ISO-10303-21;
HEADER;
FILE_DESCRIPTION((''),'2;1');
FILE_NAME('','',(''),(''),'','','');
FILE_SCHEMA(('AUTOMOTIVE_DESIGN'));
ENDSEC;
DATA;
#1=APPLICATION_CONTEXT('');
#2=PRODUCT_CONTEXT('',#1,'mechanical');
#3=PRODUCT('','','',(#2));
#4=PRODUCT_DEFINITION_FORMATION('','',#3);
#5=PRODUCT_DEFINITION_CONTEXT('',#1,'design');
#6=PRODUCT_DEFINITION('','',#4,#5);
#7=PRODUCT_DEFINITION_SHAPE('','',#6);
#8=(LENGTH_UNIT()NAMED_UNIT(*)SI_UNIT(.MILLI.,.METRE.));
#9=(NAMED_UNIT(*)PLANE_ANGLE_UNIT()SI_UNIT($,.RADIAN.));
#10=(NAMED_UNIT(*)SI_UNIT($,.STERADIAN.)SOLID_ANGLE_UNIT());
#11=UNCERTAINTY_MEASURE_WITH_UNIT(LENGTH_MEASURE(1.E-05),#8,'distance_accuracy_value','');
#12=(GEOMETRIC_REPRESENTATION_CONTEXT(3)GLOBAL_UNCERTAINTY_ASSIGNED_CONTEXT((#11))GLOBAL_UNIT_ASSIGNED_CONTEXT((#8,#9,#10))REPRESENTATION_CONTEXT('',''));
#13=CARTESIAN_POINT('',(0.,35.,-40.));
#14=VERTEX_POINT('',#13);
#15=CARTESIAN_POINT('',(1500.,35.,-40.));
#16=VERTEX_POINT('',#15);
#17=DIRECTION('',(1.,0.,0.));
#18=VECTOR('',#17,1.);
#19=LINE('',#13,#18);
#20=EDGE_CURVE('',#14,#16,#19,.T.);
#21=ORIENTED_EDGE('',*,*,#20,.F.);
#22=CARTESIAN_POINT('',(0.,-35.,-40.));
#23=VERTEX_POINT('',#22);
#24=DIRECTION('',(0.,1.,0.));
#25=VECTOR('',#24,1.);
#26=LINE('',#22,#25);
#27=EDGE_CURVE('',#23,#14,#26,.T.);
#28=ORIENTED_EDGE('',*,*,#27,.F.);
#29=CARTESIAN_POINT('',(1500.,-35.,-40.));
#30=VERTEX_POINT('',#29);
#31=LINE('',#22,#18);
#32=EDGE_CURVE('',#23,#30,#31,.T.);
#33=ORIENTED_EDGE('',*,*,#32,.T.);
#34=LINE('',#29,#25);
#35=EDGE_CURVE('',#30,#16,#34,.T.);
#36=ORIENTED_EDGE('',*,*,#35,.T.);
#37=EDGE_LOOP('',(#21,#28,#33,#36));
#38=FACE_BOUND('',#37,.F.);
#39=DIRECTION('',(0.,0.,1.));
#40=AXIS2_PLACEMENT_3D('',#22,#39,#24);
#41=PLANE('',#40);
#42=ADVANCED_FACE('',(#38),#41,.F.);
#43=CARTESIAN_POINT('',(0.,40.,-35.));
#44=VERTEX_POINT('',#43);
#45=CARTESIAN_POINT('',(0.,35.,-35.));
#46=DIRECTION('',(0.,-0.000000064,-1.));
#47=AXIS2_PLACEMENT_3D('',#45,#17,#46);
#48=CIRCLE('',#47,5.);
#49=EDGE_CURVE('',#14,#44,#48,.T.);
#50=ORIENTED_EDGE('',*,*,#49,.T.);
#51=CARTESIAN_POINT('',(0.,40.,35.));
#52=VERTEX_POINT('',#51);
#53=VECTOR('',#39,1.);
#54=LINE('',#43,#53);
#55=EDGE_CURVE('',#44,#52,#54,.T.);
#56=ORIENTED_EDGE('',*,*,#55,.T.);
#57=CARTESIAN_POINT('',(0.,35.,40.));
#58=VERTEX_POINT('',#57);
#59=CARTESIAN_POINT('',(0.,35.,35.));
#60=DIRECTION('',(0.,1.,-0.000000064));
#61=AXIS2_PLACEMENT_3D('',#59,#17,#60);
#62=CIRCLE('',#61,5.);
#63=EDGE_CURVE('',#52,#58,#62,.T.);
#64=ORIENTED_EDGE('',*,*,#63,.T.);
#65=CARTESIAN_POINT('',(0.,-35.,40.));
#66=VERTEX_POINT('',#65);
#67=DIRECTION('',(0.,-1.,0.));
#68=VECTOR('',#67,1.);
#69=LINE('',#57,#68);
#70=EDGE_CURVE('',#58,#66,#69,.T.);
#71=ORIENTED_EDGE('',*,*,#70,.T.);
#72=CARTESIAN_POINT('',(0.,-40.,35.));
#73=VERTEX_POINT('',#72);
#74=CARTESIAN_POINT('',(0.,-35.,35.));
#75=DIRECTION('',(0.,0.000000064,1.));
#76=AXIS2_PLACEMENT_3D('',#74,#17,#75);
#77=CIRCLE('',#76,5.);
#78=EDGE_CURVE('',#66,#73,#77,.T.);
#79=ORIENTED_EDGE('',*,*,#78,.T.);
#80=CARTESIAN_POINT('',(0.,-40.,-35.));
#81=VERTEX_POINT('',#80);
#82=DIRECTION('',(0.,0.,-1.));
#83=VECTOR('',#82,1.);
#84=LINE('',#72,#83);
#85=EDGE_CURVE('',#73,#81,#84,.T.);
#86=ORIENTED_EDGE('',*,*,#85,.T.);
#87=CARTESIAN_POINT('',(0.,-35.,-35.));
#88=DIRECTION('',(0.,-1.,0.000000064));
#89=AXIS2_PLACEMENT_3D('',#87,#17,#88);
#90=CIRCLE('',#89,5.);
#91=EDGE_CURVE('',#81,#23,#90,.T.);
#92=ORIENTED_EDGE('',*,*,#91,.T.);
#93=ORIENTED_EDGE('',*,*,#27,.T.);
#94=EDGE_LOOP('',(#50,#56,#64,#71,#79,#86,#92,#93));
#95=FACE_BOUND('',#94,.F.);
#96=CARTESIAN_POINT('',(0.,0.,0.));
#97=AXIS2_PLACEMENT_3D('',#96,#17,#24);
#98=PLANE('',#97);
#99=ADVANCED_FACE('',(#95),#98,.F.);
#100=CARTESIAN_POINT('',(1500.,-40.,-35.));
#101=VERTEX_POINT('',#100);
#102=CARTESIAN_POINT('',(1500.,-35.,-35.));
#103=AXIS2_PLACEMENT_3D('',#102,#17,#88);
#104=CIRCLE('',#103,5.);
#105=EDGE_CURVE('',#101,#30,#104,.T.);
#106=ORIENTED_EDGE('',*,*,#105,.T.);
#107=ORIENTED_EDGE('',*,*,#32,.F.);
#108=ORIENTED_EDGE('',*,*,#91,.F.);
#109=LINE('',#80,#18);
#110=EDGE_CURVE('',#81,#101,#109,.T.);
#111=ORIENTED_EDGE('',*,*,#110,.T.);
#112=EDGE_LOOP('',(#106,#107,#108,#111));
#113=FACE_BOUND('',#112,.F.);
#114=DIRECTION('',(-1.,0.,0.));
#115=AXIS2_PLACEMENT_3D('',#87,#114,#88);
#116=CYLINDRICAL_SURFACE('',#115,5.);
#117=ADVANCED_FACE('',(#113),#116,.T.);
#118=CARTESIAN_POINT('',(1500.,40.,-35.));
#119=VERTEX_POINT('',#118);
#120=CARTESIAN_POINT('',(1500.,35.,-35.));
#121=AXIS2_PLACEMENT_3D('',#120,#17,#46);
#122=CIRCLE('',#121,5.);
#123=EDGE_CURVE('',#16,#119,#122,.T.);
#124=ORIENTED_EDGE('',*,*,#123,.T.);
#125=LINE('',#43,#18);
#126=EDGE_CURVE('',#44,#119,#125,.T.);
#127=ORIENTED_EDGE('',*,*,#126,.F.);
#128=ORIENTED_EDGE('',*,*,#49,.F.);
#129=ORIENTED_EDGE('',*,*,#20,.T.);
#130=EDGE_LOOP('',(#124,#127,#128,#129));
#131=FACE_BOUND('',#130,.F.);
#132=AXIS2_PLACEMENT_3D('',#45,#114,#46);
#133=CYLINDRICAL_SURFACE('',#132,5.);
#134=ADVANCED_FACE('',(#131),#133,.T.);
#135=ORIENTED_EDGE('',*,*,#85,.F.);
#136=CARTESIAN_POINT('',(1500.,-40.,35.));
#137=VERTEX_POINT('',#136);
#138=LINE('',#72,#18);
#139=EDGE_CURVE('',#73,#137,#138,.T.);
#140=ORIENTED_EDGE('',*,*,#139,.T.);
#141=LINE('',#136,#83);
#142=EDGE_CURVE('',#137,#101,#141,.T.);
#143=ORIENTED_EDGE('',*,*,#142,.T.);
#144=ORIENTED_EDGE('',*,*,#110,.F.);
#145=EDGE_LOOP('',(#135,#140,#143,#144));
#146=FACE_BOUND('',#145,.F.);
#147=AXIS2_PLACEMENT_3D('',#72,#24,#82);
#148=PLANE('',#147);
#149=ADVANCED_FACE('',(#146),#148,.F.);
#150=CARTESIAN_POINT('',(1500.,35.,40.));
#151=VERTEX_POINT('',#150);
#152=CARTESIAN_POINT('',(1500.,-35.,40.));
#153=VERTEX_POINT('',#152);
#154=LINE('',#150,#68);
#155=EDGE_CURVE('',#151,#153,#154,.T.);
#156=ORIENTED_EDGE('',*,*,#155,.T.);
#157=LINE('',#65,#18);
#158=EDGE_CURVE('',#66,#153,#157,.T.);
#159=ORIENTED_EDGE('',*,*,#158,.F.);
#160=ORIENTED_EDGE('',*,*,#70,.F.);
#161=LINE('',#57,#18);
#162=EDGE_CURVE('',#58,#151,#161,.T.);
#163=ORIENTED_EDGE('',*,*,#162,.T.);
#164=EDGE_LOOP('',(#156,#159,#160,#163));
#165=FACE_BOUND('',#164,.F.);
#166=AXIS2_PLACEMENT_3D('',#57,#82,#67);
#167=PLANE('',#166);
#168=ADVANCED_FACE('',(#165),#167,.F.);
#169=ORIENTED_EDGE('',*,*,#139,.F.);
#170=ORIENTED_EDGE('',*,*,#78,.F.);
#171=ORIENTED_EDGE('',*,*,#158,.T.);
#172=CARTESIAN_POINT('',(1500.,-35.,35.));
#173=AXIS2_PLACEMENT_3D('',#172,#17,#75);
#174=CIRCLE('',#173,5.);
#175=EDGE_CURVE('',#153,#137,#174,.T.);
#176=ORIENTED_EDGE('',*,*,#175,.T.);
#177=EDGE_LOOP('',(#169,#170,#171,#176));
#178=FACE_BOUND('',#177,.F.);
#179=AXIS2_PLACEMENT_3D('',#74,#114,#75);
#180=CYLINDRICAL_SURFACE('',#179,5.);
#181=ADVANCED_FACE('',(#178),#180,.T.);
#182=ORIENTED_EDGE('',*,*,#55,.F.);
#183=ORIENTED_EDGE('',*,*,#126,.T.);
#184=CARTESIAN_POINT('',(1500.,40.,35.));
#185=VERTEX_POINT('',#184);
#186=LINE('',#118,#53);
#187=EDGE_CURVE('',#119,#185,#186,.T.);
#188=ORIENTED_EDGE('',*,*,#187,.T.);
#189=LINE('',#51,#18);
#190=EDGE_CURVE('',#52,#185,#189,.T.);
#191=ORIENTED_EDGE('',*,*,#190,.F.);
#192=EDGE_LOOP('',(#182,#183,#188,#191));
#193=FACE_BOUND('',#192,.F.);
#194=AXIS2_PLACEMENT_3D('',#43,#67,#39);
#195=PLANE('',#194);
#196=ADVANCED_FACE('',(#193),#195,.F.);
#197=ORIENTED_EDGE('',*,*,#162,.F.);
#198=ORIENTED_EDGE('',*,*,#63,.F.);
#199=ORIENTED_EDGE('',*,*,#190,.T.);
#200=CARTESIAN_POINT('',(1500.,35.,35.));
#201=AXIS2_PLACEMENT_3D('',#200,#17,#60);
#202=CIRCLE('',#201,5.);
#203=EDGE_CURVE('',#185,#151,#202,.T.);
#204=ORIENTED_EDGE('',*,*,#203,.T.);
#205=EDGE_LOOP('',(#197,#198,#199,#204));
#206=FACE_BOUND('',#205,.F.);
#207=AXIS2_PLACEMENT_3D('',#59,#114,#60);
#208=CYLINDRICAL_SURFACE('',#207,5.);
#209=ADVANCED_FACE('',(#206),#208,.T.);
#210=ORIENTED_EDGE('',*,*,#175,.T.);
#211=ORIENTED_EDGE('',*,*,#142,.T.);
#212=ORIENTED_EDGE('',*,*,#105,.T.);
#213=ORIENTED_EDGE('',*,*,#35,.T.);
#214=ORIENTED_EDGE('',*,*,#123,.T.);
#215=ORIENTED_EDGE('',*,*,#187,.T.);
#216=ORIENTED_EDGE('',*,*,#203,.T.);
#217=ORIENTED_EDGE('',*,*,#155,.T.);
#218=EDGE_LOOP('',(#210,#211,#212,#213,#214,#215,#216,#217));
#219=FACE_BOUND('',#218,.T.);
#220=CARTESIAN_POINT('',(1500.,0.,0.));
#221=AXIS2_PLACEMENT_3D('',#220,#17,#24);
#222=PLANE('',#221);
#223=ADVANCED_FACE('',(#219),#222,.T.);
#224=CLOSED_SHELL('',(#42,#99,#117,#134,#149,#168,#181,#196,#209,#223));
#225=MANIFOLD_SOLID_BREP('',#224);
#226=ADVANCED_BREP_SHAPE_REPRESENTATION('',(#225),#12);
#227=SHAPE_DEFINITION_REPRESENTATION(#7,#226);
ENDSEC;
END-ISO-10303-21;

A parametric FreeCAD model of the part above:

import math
import FreeCAD as App
import Part
import Sketcher
Q = App.Units.Quantity

doc = App.newDocument("Part")
body = doc.addObject("PartDesign::Body", "Body")

sketch1 = body.newObject("Sketcher::SketchObject", "Sketch")
sketch1.AttachmentSupport = (doc.getObject("YZ_Plane"), [""])
sketch1.MapMode = "FlatFace"
sketch1.addGeometry(Part.ArcOfCircle(Part.Circle(App.Vector(35, 35, 0), App.Vector(0, 0, 1), 5), math.radians(-0.000004), math.radians(90.000004)), False)
sketch1.addGeometry(Part.LineSegment(App.Vector(35, 40, 0), App.Vector(-35, 40, 0)), False)
sketch1.addGeometry(Part.ArcOfCircle(Part.Circle(App.Vector(-35, 35, 0), App.Vector(0, 0, 1), 5), math.radians(89.999996), math.radians(180.000004)), False)
sketch1.addGeometry(Part.LineSegment(App.Vector(-40, 35, 0), App.Vector(-40, -35, 0)), False)
sketch1.addGeometry(Part.ArcOfCircle(Part.Circle(App.Vector(-35, -35, 0), App.Vector(0, 0, 1), 5), math.radians(179.999996), math.radians(270.000004)), False)
sketch1.addGeometry(Part.LineSegment(App.Vector(-35, -40, 0), App.Vector(35, -40, 0)), False)
sketch1.addGeometry(Part.ArcOfCircle(Part.Circle(App.Vector(35, -35, 0), App.Vector(0, 0, 1), 5), math.radians(-90.000004), math.radians(0.000004)), False)
sketch1.addGeometry(Part.LineSegment(App.Vector(40, -35, 0), App.Vector(40, 35, 0)), False)
sketch1.addConstraint(Sketcher.Constraint("Tangent", 0, 2, 1, 1))
sketch1.addConstraint(Sketcher.Constraint("Tangent", 1, 2, 2, 1))
sketch1.addConstraint(Sketcher.Constraint("Tangent", 2, 2, 3, 1))
sketch1.addConstraint(Sketcher.Constraint("Tangent", 3, 2, 4, 1))
sketch1.addConstraint(Sketcher.Constraint("Tangent", 4, 2, 5, 1))
sketch1.addConstraint(Sketcher.Constraint("Tangent", 5, 2, 6, 1))
sketch1.addConstraint(Sketcher.Constraint("Tangent", 6, 2, 7, 1))
sketch1.addConstraint(Sketcher.Constraint("Tangent", 7, 2, 0, 1))
sketch1.addConstraint(Sketcher.Constraint("Horizontal", 1))
sketch1.addConstraint(Sketcher.Constraint("Vertical", 3))
sketch1.addConstraint(Sketcher.Constraint("Horizontal", 5))
sketch1.addConstraint(Sketcher.Constraint("Vertical", 7))
sketch1.addConstraint(Sketcher.Constraint("Equal", 0, 2))
sketch1.addConstraint(Sketcher.Constraint("Equal", 2, 4))
sketch1.addConstraint(Sketcher.Constraint("Equal", 4, 6))
sketch1.addConstraint(Sketcher.Constraint("Symmetric", 0, 3, 4, 3, -1, 1))
sketch1.addConstraint(Sketcher.Constraint("Equal", 5, 3))
sketch1.addConstraint(Sketcher.Constraint("Radius", 0, Q("5 mm")))
sketch1.addConstraint(Sketcher.Constraint("DistanceX", 1, 2, 1, 1, Q("70 mm")))
pad1 = body.newObject("PartDesign::Pad", "Pad")
pad1.Profile = sketch1
pad1.Length = 1500

doc.recompute()
